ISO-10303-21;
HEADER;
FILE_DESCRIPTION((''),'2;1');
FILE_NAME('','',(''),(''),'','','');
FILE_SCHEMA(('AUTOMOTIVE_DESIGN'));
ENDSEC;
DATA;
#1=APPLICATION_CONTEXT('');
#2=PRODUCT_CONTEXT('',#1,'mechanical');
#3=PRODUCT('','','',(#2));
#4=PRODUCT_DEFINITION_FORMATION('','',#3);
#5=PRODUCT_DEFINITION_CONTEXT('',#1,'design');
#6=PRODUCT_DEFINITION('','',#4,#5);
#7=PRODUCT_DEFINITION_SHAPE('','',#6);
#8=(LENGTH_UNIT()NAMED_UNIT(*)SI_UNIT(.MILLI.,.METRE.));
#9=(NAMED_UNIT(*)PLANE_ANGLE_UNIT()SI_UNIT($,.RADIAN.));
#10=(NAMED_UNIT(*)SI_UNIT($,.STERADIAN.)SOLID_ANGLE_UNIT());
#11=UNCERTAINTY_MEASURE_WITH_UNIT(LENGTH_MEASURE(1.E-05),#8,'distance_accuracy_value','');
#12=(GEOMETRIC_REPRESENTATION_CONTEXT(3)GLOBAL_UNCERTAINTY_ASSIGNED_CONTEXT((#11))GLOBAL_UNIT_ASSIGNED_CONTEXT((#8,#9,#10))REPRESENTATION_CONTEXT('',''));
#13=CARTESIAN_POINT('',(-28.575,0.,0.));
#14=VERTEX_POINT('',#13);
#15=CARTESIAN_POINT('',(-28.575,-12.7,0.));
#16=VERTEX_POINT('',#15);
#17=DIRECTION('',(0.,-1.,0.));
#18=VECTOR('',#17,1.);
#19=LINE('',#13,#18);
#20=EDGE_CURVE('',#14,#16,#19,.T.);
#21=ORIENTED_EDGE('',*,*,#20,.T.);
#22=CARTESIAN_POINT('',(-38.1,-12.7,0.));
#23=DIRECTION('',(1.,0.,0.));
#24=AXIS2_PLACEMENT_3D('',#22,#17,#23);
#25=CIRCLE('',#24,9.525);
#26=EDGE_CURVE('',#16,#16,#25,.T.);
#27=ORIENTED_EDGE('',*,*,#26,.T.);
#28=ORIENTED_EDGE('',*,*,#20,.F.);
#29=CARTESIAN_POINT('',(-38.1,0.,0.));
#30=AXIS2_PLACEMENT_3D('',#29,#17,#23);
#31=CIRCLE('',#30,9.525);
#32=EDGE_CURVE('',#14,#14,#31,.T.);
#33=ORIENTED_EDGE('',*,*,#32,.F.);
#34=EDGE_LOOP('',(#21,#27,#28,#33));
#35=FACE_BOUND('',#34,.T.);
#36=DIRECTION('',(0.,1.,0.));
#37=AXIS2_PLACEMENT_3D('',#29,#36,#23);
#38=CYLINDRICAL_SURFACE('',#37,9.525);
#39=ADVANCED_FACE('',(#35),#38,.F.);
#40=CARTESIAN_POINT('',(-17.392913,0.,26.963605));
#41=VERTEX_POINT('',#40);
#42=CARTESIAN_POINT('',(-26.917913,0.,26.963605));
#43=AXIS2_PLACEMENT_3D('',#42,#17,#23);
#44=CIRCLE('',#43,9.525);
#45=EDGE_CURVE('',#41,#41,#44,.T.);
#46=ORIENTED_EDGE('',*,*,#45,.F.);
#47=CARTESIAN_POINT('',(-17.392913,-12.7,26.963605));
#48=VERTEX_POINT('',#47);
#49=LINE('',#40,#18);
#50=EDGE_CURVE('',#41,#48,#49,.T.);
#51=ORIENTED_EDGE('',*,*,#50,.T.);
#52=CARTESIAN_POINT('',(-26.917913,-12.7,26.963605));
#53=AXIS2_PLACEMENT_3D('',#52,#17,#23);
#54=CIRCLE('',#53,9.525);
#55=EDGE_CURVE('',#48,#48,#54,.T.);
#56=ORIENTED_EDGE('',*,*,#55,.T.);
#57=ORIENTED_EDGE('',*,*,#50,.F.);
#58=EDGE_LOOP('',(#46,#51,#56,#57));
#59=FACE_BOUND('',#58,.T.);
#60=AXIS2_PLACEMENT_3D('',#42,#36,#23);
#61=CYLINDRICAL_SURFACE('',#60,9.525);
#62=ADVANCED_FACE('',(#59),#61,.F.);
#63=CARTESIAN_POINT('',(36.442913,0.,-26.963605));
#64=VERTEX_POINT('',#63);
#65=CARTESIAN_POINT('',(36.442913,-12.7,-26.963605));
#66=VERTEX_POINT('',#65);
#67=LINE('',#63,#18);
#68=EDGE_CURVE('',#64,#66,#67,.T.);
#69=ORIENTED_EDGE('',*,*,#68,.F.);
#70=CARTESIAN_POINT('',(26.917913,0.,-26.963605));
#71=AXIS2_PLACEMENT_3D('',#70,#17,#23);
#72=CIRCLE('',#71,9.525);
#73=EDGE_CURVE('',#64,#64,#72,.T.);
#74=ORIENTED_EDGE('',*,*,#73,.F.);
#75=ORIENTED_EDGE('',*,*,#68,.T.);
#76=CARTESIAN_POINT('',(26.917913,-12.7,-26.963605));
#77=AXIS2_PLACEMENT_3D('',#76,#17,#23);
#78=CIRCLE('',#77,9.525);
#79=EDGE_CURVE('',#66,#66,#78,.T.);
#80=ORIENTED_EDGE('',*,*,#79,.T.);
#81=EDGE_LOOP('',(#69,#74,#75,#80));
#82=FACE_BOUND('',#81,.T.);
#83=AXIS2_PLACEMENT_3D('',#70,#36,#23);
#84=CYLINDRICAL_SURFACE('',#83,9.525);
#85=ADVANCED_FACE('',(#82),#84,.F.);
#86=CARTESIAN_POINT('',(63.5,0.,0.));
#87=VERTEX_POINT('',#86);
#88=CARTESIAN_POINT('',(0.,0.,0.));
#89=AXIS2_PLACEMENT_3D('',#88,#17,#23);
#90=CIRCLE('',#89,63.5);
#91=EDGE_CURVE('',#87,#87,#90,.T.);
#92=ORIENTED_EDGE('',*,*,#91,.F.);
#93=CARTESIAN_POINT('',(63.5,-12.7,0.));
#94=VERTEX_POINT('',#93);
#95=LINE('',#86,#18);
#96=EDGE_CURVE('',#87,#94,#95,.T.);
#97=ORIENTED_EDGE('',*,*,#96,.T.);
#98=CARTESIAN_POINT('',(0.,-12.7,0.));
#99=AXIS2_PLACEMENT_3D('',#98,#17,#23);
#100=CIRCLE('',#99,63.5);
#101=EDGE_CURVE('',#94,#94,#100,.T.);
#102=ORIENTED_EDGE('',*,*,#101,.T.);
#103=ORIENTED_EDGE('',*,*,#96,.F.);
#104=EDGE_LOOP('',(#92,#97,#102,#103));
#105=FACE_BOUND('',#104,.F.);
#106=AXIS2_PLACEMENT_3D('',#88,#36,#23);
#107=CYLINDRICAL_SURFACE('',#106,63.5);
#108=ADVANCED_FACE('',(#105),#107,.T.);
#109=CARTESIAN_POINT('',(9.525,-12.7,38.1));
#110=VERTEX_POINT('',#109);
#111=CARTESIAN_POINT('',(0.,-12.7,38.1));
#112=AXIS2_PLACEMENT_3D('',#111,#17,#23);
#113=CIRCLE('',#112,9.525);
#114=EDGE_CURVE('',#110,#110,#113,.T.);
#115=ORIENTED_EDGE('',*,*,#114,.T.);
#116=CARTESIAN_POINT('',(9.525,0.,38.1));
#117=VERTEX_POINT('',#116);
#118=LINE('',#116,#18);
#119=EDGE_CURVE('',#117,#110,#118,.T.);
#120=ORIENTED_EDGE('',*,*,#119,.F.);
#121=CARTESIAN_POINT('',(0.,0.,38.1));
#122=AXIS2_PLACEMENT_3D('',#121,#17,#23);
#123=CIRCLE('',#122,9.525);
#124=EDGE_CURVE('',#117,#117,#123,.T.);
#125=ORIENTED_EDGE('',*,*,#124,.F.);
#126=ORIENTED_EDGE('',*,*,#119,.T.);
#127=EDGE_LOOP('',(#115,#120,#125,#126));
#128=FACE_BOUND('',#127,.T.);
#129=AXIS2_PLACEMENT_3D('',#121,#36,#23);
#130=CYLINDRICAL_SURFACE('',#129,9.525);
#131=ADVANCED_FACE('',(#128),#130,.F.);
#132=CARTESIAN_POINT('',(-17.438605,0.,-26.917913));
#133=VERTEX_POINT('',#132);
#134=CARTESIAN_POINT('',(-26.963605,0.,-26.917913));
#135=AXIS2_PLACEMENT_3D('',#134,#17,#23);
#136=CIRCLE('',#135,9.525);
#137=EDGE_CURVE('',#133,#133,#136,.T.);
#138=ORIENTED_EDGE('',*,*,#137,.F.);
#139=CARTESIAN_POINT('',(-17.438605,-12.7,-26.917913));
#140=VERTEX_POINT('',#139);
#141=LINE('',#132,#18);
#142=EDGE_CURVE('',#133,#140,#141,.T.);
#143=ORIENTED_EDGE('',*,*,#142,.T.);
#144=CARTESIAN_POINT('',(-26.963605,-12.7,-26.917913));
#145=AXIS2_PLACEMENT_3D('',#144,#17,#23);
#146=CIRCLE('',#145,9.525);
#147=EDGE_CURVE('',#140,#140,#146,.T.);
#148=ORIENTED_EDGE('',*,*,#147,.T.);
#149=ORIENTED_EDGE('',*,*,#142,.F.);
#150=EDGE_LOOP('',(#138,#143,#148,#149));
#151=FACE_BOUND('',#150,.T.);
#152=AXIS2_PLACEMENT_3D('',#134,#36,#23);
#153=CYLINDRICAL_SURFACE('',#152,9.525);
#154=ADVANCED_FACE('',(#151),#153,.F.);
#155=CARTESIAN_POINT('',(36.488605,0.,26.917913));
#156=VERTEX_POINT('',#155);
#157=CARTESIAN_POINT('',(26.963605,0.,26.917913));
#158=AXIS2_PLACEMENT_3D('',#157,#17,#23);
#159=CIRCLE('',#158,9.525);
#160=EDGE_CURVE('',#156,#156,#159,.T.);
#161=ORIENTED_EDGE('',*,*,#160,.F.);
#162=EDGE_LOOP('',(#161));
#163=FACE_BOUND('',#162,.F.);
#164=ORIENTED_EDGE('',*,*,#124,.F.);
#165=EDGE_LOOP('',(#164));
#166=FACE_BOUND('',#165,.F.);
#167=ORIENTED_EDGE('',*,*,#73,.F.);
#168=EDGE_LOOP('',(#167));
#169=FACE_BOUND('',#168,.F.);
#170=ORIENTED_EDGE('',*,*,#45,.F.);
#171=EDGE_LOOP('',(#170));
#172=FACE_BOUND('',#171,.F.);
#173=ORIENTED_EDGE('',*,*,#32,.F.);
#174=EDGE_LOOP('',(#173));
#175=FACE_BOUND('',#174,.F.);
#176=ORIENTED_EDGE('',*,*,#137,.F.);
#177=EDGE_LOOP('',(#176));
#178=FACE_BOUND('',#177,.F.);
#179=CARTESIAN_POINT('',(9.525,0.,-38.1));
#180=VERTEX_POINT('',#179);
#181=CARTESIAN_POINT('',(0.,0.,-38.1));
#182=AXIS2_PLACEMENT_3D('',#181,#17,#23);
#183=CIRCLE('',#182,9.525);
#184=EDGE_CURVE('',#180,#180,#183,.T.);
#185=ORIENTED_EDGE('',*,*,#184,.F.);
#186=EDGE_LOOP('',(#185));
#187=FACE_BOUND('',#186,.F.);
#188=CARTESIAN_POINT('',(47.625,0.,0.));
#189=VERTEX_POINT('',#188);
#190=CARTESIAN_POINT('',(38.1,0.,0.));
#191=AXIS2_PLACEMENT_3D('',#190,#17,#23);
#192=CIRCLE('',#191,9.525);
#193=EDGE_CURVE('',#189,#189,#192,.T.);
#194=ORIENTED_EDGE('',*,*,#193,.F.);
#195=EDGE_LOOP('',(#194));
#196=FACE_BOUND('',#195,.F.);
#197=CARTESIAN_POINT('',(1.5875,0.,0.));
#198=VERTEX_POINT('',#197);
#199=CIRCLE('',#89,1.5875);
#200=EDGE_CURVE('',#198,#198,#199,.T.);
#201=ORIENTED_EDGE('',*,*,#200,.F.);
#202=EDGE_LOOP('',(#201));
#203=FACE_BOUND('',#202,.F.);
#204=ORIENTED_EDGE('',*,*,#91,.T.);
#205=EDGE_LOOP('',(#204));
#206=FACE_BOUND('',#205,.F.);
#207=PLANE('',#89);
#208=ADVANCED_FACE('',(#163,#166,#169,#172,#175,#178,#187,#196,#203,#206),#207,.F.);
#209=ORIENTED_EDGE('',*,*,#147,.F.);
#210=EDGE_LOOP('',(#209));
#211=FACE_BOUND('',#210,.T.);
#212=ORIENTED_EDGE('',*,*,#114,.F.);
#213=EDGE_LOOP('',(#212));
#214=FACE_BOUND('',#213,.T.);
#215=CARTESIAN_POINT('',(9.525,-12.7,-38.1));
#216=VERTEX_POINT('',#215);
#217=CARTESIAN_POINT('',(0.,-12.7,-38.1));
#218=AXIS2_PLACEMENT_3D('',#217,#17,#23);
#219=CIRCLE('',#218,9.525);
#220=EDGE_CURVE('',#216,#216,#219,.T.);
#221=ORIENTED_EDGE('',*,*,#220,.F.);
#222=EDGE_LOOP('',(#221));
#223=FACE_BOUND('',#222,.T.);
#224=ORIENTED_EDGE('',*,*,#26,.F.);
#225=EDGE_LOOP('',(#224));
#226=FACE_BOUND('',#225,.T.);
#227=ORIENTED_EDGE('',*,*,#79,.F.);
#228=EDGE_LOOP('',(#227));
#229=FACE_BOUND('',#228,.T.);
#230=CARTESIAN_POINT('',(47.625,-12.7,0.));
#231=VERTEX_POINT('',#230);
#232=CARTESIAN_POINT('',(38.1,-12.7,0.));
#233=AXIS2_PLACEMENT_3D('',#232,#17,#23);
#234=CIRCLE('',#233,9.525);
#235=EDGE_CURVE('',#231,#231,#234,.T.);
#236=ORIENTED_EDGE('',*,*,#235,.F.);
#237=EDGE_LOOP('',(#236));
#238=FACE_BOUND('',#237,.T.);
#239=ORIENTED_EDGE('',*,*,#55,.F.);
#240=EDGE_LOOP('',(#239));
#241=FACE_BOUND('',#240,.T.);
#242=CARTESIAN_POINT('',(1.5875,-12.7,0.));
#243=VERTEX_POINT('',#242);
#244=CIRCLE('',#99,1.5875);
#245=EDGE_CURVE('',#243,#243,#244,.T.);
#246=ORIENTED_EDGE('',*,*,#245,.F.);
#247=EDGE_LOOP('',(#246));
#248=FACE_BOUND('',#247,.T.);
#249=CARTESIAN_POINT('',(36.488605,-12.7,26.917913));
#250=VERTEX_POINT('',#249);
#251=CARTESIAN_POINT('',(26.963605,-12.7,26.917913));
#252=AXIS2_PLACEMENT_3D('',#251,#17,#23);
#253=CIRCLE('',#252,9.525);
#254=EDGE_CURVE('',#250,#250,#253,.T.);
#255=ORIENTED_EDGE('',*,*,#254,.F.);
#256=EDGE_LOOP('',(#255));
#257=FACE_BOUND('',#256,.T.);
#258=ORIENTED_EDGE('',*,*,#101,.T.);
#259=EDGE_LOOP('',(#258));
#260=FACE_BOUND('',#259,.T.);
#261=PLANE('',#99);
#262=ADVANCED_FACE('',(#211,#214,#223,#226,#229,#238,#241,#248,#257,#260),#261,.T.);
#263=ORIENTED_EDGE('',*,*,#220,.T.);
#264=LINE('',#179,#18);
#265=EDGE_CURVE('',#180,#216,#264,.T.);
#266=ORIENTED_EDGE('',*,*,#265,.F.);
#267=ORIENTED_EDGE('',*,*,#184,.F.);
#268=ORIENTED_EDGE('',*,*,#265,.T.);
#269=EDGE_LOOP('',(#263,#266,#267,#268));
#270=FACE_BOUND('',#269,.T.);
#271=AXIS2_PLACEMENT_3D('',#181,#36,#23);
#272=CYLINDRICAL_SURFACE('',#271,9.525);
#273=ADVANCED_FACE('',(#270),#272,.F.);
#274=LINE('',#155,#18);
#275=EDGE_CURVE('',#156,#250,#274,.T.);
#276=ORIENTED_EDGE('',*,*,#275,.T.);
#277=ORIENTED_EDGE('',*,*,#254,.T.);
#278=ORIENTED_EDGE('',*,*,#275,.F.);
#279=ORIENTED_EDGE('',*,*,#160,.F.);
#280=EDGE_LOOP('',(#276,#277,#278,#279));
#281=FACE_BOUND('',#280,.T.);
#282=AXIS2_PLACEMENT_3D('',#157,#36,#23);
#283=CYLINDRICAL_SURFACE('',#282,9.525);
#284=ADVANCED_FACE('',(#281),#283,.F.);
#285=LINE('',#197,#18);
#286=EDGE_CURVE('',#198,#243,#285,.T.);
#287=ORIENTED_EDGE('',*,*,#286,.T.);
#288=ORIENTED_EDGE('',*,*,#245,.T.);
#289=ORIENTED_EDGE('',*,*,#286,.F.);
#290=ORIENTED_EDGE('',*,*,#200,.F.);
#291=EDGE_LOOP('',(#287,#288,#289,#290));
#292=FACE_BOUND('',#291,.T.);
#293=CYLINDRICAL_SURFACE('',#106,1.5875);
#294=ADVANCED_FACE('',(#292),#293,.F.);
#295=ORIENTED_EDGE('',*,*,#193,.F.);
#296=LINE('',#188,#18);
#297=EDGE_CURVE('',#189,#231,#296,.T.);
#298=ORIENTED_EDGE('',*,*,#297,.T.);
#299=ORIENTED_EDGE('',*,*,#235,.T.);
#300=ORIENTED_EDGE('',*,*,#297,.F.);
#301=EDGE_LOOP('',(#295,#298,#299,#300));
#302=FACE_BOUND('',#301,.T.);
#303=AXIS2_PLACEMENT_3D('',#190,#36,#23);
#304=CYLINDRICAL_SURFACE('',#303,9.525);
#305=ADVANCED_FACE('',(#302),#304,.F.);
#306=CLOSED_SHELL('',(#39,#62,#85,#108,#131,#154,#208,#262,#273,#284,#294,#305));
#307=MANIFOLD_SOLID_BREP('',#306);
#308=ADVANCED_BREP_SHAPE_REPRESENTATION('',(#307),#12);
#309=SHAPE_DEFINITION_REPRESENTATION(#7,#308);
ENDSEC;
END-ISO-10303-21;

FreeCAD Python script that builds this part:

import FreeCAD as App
import Part
import Sketcher
Q = App.Units.Quantity

doc = App.newDocument("Part")
body = doc.addObject("PartDesign::Body", "Body")

# Sketch on XZ plane
sketch1 = body.newObject("Sketcher::SketchObject", "Sketch")
sketch1.AttachmentSupport = (doc.getObject("XZ_Plane"), [""])
sketch1.MapMode = "FlatFace"
sketch1.addGeometry([
    Part.Circle(App.Vector(0, 0, 0), App.Vector(0, 0, 1), 63.5),  # 0
    Part.Circle(App.Vector(-27, -26.9, 0), App.Vector(0, 0, 1), 9.5),  # 1
    Part.Circle(App.Vector(0, -38.1, 0), App.Vector(0, 0, 1), 9.5),  # 2
    Part.Circle(App.Vector(26.9, -27, 0), App.Vector(0, 0, 1), 9.5),  # 3
    Part.Circle(App.Vector(-38.1, 0, 0), App.Vector(0, 0, 1), 9.5),  # 4
    Part.Circle(App.Vector(-26.9, 27, 0), App.Vector(0, 0, 1), 9.5),  # 5
    Part.Circle(App.Vector(0, 0, 0), App.Vector(0, 0, 1), 1.6),  # 6
    Part.Circle(App.Vector(38.1, 0, 0), App.Vector(0, 0, 1), 9.5),  # 7
    Part.Circle(App.Vector(0, 38.1, 0), App.Vector(0, 0, 1), 9.5),  # 8
    Part.Circle(App.Vector(27, 26.9, 0), App.Vector(0, 0, 1), 9.5),  # 9
], False)
sketch1.addConstraint([
    Sketcher.Constraint("Coincident", 0, 3, -1, 1),
    Sketcher.Constraint("Coincident", 6, 3, -1, 1),
    Sketcher.Constraint("Equal", 1, 2),
    Sketcher.Constraint("Equal", 2, 3),
    Sketcher.Constraint("Equal", 3, 4),
    Sketcher.Constraint("Equal", 4, 5),
    Sketcher.Constraint("Equal", 5, 7),
    Sketcher.Constraint("Equal", 7, 8),
    Sketcher.Constraint("Equal", 8, 9),
    Sketcher.Constraint("Symmetric", 3, 3, 5, 3, -1, 1),
    Sketcher.Constraint("Symmetric", 4, 3, 7, 3, -1, 1),
    Sketcher.Constraint("Symmetric", 2, 3, 8, 3, -1, 1),
    Sketcher.Constraint("Symmetric", 1, 3, 9, 3, -1, 1),
    Sketcher.Constraint("PointOnObject", 2, 3, -2),
    Sketcher.Constraint("PointOnObject", 4, 3, -1),
    Sketcher.Constraint("Diameter", 0, Q("5 in")),
    Sketcher.Constraint("Diameter", 1, Q("0.75 in")),
    Sketcher.Constraint("Diameter", 6, Q("0.125 in")),
    Sketcher.Constraint("DistanceY", 2, 3, -1, 1, Q("1.5 in")),
    Sketcher.Constraint("DistanceX", 4, 3, -1, 1, Q("1.5 in")),
    Sketcher.Constraint("DistanceY", 3, 3, 5, 3, 53.92721),
    Sketcher.Constraint("DistanceX", 1, 3, -1, 1, 26.963605),
    Sketcher.Constraint("DistanceY", 1, 3, -1, 1, 26.917913),
    Sketcher.Constraint("DistanceX", -1, 1, 3, 3, 26.917913),
])
pad1 = body.newObject("PartDesign::Pad", "Pad")
pad1.Profile = sketch1
pad1.Length = Q("0.5 in")

doc.recompute()
